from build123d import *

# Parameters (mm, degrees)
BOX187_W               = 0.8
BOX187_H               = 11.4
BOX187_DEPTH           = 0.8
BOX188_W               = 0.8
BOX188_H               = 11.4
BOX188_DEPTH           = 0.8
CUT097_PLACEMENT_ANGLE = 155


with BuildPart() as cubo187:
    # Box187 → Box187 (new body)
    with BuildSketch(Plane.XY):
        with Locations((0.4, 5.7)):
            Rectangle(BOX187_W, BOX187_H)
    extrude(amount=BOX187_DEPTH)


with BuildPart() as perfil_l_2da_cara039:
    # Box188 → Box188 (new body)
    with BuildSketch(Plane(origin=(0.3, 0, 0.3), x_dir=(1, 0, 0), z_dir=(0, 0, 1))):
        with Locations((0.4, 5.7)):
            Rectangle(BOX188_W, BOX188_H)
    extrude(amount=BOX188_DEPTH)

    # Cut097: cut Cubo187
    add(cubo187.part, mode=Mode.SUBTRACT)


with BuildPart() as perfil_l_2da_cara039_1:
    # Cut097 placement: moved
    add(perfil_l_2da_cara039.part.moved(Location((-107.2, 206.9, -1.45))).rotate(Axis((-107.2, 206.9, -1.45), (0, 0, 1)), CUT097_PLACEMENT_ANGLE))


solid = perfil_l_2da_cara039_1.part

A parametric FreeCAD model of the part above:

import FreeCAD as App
import Part
import Sketcher
Q = App.Units.Quantity


def add_polygon(sketch, points):
    """Adds a closed chain of lines whose ends are joined by coincident constraints."""
    first, n = sketch.GeometryCount, len(points)
    for a, b in zip(points, points[1:] + points[:1]):
        sketch.addGeometry(Part.LineSegment(App.Vector(*a, 0), App.Vector(*b, 0)), False)
    for i in range(n):
        sketch.addConstraint(Sketcher.Constraint("Coincident", first + i, 2, first + (i + 1) % n, 1))

doc = App.newDocument("Part")
params = doc.addObject("Spreadsheet::Sheet", "Params")
for row, (alias, value) in enumerate([
    ("sketch1_width", "0.8 mm"),
    ("sketch1_height", "11.4 mm"),
    ("pad1_length", "0.8 mm"),
    ("sketch2_width", "0.8 mm"),
    ("sketch2_height", "11.4 mm"),
    ("pad2_length", "0.8 mm"),
], start=1):
    params.set(f"A{row}", alias)
    params.set(f"B{row}", "=" + value)
    params.setAlias(f"B{row}", alias)

body = doc.addObject("PartDesign::Body", "Body")

sketch1 = body.newObject("Sketcher::SketchObject", "Sketch")
sketch1.AttachmentSupport = (doc.getObject("XY_Plane"), [""])
sketch1.MapMode = "FlatFace"
add_polygon(sketch1, [(0, 11.4), (0, 0), (0.8, 0), (0.8, 11.4)])
sketch1.addConstraint(Sketcher.Constraint("Vertical", 0))
sketch1.addConstraint(Sketcher.Constraint("Horizontal", 1))
sketch1.addConstraint(Sketcher.Constraint("Vertical", 2))
sketch1.addConstraint(Sketcher.Constraint("Horizontal", 3))
sketch1.addConstraint(Sketcher.Constraint("Coincident", 0, 2, -1, 1))
sketch1.addConstraint(Sketcher.Constraint("DistanceX", 1, 1, 1, 2, Q("0.8 mm")))
sketch1.addConstraint(Sketcher.Constraint("DistanceY", 0, 2, 0, 1, Q("11.4 mm")))
sketch1.setExpression("Constraints[9]", "Params.sketch1_width")
sketch1.setExpression("Constraints[10]", "Params.sketch1_height")
pad1 = body.newObject("PartDesign::Pad", "Pad")
pad1.Profile = sketch1
pad1.setExpression("Length", "Params.pad1_length")
body2 = doc.addObject("PartDesign::Body", "Body001")

sketch2 = body2.newObject("Sketcher::SketchObject", "Sketch001")
sketch2.AttachmentSupport = (doc.getObject("XY_Plane001"), [""])
sketch2.MapMode = "FlatFace"
sketch2.AttachmentOffset = App.Placement(App.Vector(0, 0, 0.3), App.Rotation())
add_polygon(sketch2, [(0.3, 11.4), (0.3, 0), (1.1, 0), (1.1, 11.4)])
sketch2.addConstraint(Sketcher.Constraint("Vertical", 0))
sketch2.addConstraint(Sketcher.Constraint("Horizontal", 1))
sketch2.addConstraint(Sketcher.Constraint("Vertical", 2))
sketch2.addConstraint(Sketcher.Constraint("Horizontal", 3))
sketch2.addConstraint(Sketcher.Constraint("PointOnObject", 0, 2, -1))
sketch2.addConstraint(Sketcher.Constraint("DistanceX", 1, 1, 1, 2, Q("0.8 mm")))
sketch2.addConstraint(Sketcher.Constraint("DistanceY", 0, 2, 0, 1, Q("11.4 mm")))
sketch2.addConstraint(Sketcher.Constraint("DistanceX", -1, 1, 0, 2, Q("0.3 mm")))
sketch2.setExpression("Constraints[9]", "Params.sketch2_width")
sketch2.setExpression("Constraints[10]", "Params.sketch2_height")
pad2 = body2.newObject("PartDesign::Pad", "Pad001")
pad2.Profile = sketch2
pad2.setExpression("Length", "Params.pad2_length")
doc.recompute()

boolean = body2.newObject("PartDesign::Boolean", "Boolean")
boolean.Type = "Cut"
boolean.addObjects([body])
body3 = doc.addObject("PartDesign::Body", "Body002")
doc.recompute()

body2.Placement = App.Placement(App.Vector(-107.2, 206.9, -1.45), App.Rotation(App.Vector(0, 0, 1), 155))
boolean2 = body3.newObject("PartDesign::Boolean", "Boolean001")
boolean2.Type = "Fuse"
boolean2.addObjects([body2])

doc.recompute()
